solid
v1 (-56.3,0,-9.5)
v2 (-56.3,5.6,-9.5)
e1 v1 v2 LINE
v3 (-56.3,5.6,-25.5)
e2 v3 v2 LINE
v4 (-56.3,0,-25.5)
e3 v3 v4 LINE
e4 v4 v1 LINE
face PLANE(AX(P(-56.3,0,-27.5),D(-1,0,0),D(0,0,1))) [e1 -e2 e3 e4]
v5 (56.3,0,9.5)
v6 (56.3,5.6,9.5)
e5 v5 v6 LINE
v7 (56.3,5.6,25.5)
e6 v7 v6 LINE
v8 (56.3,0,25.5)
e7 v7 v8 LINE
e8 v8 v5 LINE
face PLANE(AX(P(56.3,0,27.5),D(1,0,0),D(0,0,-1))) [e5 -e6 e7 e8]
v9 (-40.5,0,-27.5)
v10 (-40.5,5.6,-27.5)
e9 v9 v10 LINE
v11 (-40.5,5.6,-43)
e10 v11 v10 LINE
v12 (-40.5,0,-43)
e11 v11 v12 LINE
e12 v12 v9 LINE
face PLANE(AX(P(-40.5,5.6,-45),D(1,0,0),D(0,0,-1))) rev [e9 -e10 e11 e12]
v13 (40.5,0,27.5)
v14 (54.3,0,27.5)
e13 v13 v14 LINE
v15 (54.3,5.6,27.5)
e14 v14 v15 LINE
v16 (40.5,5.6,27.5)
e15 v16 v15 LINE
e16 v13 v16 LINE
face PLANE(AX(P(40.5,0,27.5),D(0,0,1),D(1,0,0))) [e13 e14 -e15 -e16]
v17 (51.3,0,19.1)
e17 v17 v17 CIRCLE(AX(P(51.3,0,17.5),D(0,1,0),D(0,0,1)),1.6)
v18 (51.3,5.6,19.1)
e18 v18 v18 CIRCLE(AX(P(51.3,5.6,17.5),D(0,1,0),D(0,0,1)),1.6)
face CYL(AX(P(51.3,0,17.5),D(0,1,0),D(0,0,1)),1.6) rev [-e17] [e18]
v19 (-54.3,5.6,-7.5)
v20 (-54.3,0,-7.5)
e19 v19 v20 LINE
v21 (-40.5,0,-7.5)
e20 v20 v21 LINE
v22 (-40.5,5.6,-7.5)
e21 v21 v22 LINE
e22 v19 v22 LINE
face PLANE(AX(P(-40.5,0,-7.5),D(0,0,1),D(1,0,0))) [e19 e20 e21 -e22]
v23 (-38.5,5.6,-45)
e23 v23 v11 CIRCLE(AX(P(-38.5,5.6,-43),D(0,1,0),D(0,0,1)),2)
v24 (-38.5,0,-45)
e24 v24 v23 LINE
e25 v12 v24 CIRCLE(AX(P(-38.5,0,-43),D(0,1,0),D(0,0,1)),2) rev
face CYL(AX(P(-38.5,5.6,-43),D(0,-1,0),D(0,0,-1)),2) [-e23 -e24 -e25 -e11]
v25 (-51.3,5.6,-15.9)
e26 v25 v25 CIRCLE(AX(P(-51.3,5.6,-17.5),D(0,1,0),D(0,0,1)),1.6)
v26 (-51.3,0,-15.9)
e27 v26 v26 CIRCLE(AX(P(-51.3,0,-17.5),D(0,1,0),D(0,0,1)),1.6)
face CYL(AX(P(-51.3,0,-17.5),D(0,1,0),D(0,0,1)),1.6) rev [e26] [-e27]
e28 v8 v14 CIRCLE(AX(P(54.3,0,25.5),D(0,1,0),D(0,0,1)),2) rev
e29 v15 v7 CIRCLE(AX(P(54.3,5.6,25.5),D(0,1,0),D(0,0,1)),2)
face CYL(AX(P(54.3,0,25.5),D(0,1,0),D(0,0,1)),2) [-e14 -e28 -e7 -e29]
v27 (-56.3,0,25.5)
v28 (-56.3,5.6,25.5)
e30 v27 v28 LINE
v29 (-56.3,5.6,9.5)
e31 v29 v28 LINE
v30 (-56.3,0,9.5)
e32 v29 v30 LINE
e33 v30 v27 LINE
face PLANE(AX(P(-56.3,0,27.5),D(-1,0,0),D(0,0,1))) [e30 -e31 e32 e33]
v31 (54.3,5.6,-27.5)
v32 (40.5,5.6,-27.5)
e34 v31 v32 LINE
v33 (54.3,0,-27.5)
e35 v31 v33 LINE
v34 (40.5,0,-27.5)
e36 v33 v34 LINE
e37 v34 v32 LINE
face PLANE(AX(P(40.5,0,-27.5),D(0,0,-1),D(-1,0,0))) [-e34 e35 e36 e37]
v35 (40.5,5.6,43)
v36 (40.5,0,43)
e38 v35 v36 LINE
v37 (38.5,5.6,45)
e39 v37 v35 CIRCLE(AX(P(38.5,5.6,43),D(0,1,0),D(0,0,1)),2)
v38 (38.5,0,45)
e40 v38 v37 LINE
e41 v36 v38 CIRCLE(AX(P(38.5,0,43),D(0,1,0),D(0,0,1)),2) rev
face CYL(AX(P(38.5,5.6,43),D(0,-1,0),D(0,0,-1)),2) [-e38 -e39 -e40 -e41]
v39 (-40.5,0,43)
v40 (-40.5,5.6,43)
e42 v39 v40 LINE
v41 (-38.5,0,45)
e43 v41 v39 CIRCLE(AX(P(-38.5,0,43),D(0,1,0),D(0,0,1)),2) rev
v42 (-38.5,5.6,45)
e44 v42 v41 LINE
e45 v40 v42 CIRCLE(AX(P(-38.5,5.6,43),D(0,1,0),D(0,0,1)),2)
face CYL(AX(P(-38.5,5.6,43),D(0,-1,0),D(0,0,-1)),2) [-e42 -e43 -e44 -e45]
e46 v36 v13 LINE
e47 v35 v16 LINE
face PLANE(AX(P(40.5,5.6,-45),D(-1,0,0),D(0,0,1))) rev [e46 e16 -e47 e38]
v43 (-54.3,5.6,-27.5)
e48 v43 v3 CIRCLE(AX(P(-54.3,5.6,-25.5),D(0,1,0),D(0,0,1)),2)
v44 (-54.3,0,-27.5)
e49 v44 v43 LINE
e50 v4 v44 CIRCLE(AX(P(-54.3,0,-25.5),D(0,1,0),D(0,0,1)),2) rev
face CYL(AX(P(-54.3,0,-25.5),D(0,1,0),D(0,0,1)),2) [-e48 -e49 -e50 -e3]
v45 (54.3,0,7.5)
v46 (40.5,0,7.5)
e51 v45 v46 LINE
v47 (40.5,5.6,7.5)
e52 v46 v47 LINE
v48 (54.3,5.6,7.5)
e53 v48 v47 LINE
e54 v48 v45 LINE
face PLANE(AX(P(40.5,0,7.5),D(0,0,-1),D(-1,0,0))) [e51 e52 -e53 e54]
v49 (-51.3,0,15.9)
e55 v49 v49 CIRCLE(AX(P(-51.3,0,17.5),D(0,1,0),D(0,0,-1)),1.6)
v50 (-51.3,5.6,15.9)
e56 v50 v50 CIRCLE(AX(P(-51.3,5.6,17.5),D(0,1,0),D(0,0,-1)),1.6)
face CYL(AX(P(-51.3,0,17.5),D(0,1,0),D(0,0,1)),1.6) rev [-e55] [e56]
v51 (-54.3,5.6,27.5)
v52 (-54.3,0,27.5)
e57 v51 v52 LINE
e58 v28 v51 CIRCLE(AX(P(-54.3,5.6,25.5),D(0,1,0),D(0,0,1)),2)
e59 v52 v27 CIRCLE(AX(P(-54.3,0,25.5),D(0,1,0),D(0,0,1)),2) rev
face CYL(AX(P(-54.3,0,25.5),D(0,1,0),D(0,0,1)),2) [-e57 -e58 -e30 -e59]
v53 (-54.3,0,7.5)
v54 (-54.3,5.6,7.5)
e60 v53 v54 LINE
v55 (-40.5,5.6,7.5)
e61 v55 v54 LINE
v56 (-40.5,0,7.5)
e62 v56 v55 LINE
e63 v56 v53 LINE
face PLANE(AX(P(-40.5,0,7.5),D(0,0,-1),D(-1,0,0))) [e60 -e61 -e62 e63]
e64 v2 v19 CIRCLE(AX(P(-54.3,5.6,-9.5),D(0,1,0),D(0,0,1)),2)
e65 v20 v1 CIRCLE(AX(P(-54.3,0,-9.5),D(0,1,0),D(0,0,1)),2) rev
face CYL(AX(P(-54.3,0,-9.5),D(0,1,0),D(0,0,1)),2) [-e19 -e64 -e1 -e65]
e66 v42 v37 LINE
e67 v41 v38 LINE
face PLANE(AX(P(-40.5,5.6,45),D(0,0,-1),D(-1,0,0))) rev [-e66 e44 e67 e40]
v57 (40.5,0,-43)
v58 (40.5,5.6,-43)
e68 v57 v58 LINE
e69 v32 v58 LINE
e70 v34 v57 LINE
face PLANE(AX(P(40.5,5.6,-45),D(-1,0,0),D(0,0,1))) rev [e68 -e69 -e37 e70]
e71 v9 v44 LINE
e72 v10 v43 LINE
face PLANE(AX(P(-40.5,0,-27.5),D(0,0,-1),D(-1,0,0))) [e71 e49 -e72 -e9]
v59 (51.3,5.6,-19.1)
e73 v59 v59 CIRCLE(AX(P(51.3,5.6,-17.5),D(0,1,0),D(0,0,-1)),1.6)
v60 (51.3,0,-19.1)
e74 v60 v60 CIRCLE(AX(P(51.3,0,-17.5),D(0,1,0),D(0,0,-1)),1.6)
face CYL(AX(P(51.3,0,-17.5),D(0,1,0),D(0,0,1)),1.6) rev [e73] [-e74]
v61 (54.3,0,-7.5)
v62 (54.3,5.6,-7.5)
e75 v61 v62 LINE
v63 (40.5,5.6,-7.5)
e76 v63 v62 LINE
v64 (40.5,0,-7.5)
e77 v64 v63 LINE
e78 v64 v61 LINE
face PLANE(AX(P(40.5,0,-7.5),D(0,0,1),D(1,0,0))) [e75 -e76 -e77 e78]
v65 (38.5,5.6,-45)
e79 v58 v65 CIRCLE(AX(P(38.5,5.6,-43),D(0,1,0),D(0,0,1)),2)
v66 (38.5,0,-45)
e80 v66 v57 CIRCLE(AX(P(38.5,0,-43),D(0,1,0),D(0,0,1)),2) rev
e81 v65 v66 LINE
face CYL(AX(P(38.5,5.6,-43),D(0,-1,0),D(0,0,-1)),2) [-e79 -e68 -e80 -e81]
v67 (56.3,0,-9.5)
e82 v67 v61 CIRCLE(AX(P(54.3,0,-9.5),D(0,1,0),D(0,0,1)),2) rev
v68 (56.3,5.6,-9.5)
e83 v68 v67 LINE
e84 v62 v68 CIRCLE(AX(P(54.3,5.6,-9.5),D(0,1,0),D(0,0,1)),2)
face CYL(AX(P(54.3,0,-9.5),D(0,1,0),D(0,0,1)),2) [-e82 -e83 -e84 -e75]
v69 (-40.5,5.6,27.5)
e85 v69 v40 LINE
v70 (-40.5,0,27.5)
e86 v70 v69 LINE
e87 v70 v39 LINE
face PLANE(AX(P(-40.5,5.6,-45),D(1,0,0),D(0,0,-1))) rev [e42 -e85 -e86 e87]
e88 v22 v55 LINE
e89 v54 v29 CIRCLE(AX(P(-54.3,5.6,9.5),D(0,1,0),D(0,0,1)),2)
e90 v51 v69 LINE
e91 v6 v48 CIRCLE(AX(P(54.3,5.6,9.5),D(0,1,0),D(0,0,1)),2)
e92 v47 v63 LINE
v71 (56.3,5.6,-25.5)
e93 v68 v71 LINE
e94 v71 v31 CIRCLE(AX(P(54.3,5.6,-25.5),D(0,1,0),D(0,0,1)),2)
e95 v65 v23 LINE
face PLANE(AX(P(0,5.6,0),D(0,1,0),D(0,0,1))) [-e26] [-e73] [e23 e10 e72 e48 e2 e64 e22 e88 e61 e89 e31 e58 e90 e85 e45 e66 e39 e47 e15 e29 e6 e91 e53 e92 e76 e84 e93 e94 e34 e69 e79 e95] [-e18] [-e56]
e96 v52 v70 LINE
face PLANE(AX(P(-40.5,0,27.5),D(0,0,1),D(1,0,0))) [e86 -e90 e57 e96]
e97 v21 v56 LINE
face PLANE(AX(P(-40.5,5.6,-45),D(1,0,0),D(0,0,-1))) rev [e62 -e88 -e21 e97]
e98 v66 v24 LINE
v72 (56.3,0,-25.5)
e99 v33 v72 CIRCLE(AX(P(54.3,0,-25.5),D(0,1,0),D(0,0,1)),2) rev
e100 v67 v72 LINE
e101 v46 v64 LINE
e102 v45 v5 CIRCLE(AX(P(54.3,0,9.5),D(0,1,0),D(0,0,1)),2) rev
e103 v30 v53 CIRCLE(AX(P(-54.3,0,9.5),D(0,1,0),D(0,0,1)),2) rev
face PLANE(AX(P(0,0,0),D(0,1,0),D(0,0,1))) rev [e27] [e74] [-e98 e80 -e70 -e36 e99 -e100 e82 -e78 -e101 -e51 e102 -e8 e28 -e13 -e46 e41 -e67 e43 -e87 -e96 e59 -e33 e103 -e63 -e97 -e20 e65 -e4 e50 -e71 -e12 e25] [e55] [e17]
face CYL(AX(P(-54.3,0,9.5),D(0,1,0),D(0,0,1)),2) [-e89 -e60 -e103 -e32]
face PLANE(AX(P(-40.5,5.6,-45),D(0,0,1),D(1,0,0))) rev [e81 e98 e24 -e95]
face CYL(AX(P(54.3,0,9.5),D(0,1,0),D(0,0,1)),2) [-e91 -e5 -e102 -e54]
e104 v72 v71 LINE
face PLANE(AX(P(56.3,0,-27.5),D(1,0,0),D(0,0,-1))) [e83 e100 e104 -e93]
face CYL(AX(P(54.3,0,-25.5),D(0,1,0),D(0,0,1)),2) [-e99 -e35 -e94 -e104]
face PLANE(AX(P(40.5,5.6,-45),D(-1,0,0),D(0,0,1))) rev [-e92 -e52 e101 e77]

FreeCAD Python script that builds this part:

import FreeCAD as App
import Part
import Sketcher

V = App.Vector


def edges_at(feature, points):
    """Names of the edges that pass closest to the given points."""
    edges = feature.Shape.Edges
    near = lambda p: min(range(len(edges)), key=lambda i: edges[i].distToShape(Part.Vertex(*p))[0])
    return sorted({f"Edge{near(p) + 1}" for p in points})


def add_polygon(sketch, points):
    """Adds a closed chain of lines whose ends are joined by coincident constraints."""
    first, n = sketch.GeometryCount, len(points)
    for a, b in zip(points, points[1:] + points[:1]):
        sketch.addGeometry(Part.LineSegment(App.Vector(*a, 0), App.Vector(*b, 0)), False)
    for i in range(n):
        sketch.addConstraint(Sketcher.Constraint("Coincident", first + i, 2, first + (i + 1) % n, 1))

doc = App.newDocument("Part")
body = doc.addObject("PartDesign::Body", "Body")

# Sketch on XZ plane
sketch1 = doc.addObject("Sketcher::SketchObject", "Sketch")
body.addObject(sketch1)
sketch1.AttachmentSupport = (doc.XZ_Plane, [""])
sketch1.MapMode = "FlatFace"
add_polygon(sketch1, [(-40, -45), (-40, 45), (40, 45), (40, -45)])  # lines 0-3
sketch1.addConstraint([
    Sketcher.Constraint("Vertical", 0),
    Sketcher.Constraint("Horizontal", 1),
    Sketcher.Constraint("Vertical", 2),
    Sketcher.Constraint("Horizontal", 3),
    Sketcher.Constraint("Symmetric", 0, 2, 2, 2, -1, 1),
    Sketcher.Constraint("DistanceX", 1, 1, 1, 2, 81.0),
    Sketcher.Constraint("DistanceY", 0, 1, 0, 2, 90.0),
])
pad1 = doc.addObject("PartDesign::Pad", "Pad")
body.addObject(pad1)
pad1.Profile = sketch1
pad1.Length = 5.6
pad1.Reversed = True

# Sketch on XZ plane
sketch2 = doc.addObject("Sketcher::SketchObject", "Sketch001")
body.addObject(sketch2)
sketch2.AttachmentSupport = (doc.XZ_Plane, [""])
sketch2.MapMode = "FlatFace"
sketch2.AttachmentOffset = App.Placement(V(0, 0, -5.6), App.Rotation())
add_polygon(sketch2, [(-56.3, -27.5), (-56.3, -7.5), (-40.5, -7.5), (-40.5, -27.5)])  # lines 0-3
sketch2.addGeometry(Part.Circle(V(-51.3, -17.5, 0), V(0, 0, 1), 1.6), False)  # 4
add_polygon(sketch2, [(40.5, -27.5), (40.5, -7.5), (56.3, -7.5), (56.3, -27.5)])  # lines 5-8
sketch2.addGeometry(Part.Circle(V(51.3, -17.5, 0), V(0, 0, 1), 1.6), False)  # 9
add_polygon(sketch2, [(-56.3, 7.5), (-56.3, 27.5), (-40.5, 27.5), (-40.5, 7.5)])  # lines 10-13
sketch2.addGeometry(Part.Circle(V(-51.3, 17.5, 0), V(0, 0, 1), 1.6), False)  # 14
add_polygon(sketch2, [(40.5, 7.5), (40.5, 27.5), (56.3, 27.5), (56.3, 7.5)])  # lines 15-18
sketch2.addGeometry(Part.Circle(V(51.3, 17.5, 0), V(0, 0, 1), 1.6), False)  # 19
sketch2.addConstraint([
    Sketcher.Constraint("Vertical", 0),
    Sketcher.Constraint("Horizontal", 1),
    Sketcher.Constraint("Vertical", 2),
    Sketcher.Constraint("Horizontal", 3),
    Sketcher.Constraint("Vertical", 5),
    Sketcher.Constraint("Horizontal", 6),
    Sketcher.Constraint("Vertical", 7),
    Sketcher.Constraint("Horizontal", 8),
    Sketcher.Constraint("Vertical", 10),
    Sketcher.Constraint("Horizontal", 11),
    Sketcher.Constraint("Vertical", 12),
    Sketcher.Constraint("Horizontal", 13),
    Sketcher.Constraint("Vertical", 15),
    Sketcher.Constraint("Horizontal", 16),
    Sketcher.Constraint("Vertical", 17),
    Sketcher.Constraint("Horizontal", 18),
    Sketcher.Constraint("Equal", 4, 9),
    Sketcher.Constraint("Equal", 9, 14),
    Sketcher.Constraint("Equal", 14, 19),
    Sketcher.Constraint("Symmetric", 9, 3, 14, 3, -1, 1),
    Sketcher.Constraint("Symmetric", 4, 3, 19, 3, -1, 1),
    Sketcher.Constraint("Symmetric", 7, 2, 10, 2, -1, 1),
    Sketcher.Constraint("Symmetric", 5, 2, 12, 2, -1, 1),
    Sketcher.Constraint("Symmetric", 2, 2, 15, 2, -1, 1),
    Sketcher.Constraint("Symmetric", 0, 2, 17, 2, -1, 1),
    Sketcher.Constraint("Symmetric", 4, 3, 9, 3, -2),
    Sketcher.Constraint("Symmetric", 1, 2, 5, 2, -2),
    Sketcher.Constraint("Symmetric", 3, 2, 7, 2, -2),
    Sketcher.Constraint("Diameter", 4, 3.2),
    Sketcher.Constraint("DistanceY", 0, 1, 0, 2, 20.0),
    Sketcher.Constraint("DistanceX", 1, 1, 1, 2, 15.8),
    Sketcher.Constraint("DistanceY", 4, 3, 14, 3, 35.0),
    Sketcher.Constraint("DistanceX", 0, 2, 4, 3, 5.0),
    Sketcher.Constraint("DistanceY", 4, 3, 0, 2, 10.0),
    Sketcher.Constraint("DistanceX", 1, 2, 5, 2, 81.0),
])
pad2 = doc.addObject("PartDesign::Pad", "Pad001")
body.addObject(pad2)
pad2.Profile = sketch2
pad2.Length = 5.6
doc.recompute()

fillet = doc.addObject("PartDesign::Fillet", "Fillet")
body.addObject(fillet)
fillet.Base = (pad2, edges_at(pad2, [
    (56.3, 2.8, -27.5),
    (56.3, 2.8, -7.5),
    (-56.3, 2.8, -27.5),
    (-56.3, 2.8, -7.5),
    (-56.3, 2.8, 27.5),
    (-56.3, 2.8, 7.5),
    (56.3, 2.8, 27.5),
    (56.3, 2.8, 7.5),
    (40.5, 2.8, 45),
    (-40.5, 2.8, 45),
    (-40.5, 2.8, -45),
    (40.5, 2.8, -45),
]))
fillet.Radius = 2

doc.recompute()
